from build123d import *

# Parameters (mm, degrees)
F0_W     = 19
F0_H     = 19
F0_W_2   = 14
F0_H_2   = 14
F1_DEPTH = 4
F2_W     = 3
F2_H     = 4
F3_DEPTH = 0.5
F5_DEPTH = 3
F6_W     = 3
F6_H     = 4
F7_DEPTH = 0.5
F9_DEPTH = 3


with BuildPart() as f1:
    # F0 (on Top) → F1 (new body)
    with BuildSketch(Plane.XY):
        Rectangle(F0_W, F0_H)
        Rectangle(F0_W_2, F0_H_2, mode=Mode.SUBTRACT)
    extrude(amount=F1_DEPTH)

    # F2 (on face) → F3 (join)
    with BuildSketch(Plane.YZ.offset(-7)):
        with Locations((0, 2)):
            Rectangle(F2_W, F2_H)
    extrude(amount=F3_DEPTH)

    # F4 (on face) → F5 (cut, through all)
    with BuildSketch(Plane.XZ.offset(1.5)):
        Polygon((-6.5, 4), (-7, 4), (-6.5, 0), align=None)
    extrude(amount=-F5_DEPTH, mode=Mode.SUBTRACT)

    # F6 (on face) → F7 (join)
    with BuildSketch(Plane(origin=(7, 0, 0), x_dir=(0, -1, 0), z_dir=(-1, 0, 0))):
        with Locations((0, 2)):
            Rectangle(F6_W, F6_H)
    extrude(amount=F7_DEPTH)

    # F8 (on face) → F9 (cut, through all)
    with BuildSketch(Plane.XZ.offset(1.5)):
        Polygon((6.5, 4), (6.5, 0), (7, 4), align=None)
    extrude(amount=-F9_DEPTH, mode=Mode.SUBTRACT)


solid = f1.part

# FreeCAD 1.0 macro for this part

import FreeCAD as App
import Part
import Sketcher

V = App.Vector
Q = App.Units.Quantity


def add_polygon(sketch, points):
    """Adds a closed chain of lines whose ends are joined by coincident constraints."""
    first, n = sketch.GeometryCount, len(points)
    for a, b in zip(points, points[1:] + points[:1]):
        sketch.addGeometry(Part.LineSegment(App.Vector(*a, 0), App.Vector(*b, 0)), False)
    for i in range(n):
        sketch.addConstraint(Sketcher.Constraint("Coincident", first + i, 2, first + (i + 1) % n, 1))

doc = App.newDocument("Part")
body = doc.addObject("PartDesign::Body", "Body")

sketch1 = body.newObject("Sketcher::SketchObject", "Sketch")
sketch1.AttachmentSupport = (doc.getObject("XY_Plane"), [""])
sketch1.MapMode = "FlatFace"
add_polygon(sketch1, [(-9.5, 9.5), (-9.5, -9.5), (9.5, -9.5), (9.5, 9.5)])
add_polygon(sketch1, [(7, -7), (-7, -7), (-7, 7), (7, 7)])
sketch1.addConstraint([
    Sketcher.Constraint("Vertical", 0),
    Sketcher.Constraint("Horizontal", 1),
    Sketcher.Constraint("Vertical", 2),
    Sketcher.Constraint("Horizontal", 3),
    Sketcher.Constraint("Horizontal", 4),
    Sketcher.Constraint("Vertical", 5),
    Sketcher.Constraint("Horizontal", 6),
    Sketcher.Constraint("Vertical", 7),
    Sketcher.Constraint("Symmetric", 0, 2, 2, 2, -1, 1),
    Sketcher.Constraint("Symmetric", 4, 2, 6, 2, -1, 1),
    Sketcher.Constraint("Equal", 3, 0),
    Sketcher.Constraint("Equal", 6, 5),
    Sketcher.Constraint("DistanceX", 1, 1, 1, 2, Q("19 mm")),
    Sketcher.Constraint("DistanceX", 4, 2, 4, 1, Q("14 mm")),
])
pad1 = body.newObject("PartDesign::Pad", "Pad")
pad1.Profile = sketch1
pad1.Length = 4

sketch2 = body.newObject("Sketcher::SketchObject", "Sketch001")
sketch2.AttachmentSupport = (doc.getObject("YZ_Plane"), [""])
sketch2.MapMode = "FlatFace"
sketch2.AttachmentOffset = App.Placement(V(0, 0, -7), App.Rotation())
add_polygon(sketch2, [(-1.5, 4), (-1.5, 0), (1.5, 0), (1.5, 4)])
sketch2.addConstraint([
    Sketcher.Constraint("Vertical", 0),
    Sketcher.Constraint("Horizontal", 1),
    Sketcher.Constraint("Vertical", 2),
    Sketcher.Constraint("Horizontal", 3),
    Sketcher.Constraint("Symmetric", 0, 2, 1, 2, -1, 1),
    Sketcher.Constraint("DistanceX", 1, 1, 1, 2, Q("3 mm")),
    Sketcher.Constraint("DistanceY", 0, 2, 0, 1, Q("4 mm")),
])
pad2 = body.newObject("PartDesign::Pad", "Pad001")
pad2.Profile = sketch2
pad2.Length = 0.5

sketch3 = body.newObject("Sketcher::SketchObject", "Sketch002")
sketch3.AttachmentSupport = (doc.getObject("XZ_Plane"), [""])
sketch3.MapMode = "FlatFace"
sketch3.AttachmentOffset = App.Placement(V(0, 0, 1.5), App.Rotation())
add_polygon(sketch3, [(-6.5, 4), (-7, 4), (-6.5, 0)])
sketch3.addConstraint([
    Sketcher.Constraint("Horizontal", 0),
    Sketcher.Constraint("Vertical", 2),
    Sketcher.Constraint("PointOnObject", 1, 2, -1),
    Sketcher.Constraint("DistanceY", 2, 1, 2, 2, Q("4 mm")),
    Sketcher.Constraint("DistanceX", 0, 2, 0, 1, Q("0.5 mm")),
    Sketcher.Constraint("DistanceX", 0, 2, -1, 1, Q("7 mm")),
])
pocket1 = body.newObject("PartDesign::Pocket", "Pocket")
pocket1.Profile = sketch3
pocket1.Length = 3

sketch4 = body.newObject("Sketcher::SketchObject", "Sketch003")
sketch4.AttachmentSupport = (doc.getObject("YZ_Plane"), [""])
sketch4.MapMode = "FlatFace"
sketch4.AttachmentOffset = App.Placement(V(0, 0, 7), App.Rotation())
add_polygon(sketch4, [(1.5, 4), (1.5, 0), (-1.5, 0), (-1.5, 4)])
sketch4.addConstraint([
    Sketcher.Constraint("Vertical", 0),
    Sketcher.Constraint("Horizontal", 1),
    Sketcher.Constraint("Vertical", 2),
    Sketcher.Constraint("Horizontal", 3),
    Sketcher.Constraint("Symmetric", 0, 2, 1, 2, -1, 1),
    Sketcher.Constraint("DistanceX", 1, 2, 1, 1, Q("3 mm")),
    Sketcher.Constraint("DistanceY", 0, 2, 0, 1, Q("4 mm")),
])
pad3 = body.newObject("PartDesign::Pad", "Pad002")
pad3.Profile = sketch4
pad3.Length = 0.5
pad3.Reversed = True

sketch5 = body.newObject("Sketcher::SketchObject", "Sketch004")
sketch5.AttachmentSupport = (doc.getObject("XZ_Plane"), [""])
sketch5.MapMode = "FlatFace"
sketch5.AttachmentOffset = App.Placement(V(0, 0, 1.5), App.Rotation())
add_polygon(sketch5, [(6.5, 4), (6.5, 0), (7, 4)])
sketch5.addConstraint([
    Sketcher.Constraint("Vertical", 0),
    Sketcher.Constraint("Horizontal", 2),
    Sketcher.Constraint("PointOnObject", 0, 2, -1),
    Sketcher.Constraint("DistanceY", 0, 2, 0, 1, Q("4 mm")),
    Sketcher.Constraint("DistanceX", 2, 2, 2, 1, Q("0.5 mm")),
    Sketcher.Constraint("DistanceX", -1, 1, 1, 2, Q("7 mm")),
])
pocket2 = body.newObject("PartDesign::Pocket", "Pocket001")
pocket2.Profile = sketch5
pocket2.Length = 3

doc.recompute()
